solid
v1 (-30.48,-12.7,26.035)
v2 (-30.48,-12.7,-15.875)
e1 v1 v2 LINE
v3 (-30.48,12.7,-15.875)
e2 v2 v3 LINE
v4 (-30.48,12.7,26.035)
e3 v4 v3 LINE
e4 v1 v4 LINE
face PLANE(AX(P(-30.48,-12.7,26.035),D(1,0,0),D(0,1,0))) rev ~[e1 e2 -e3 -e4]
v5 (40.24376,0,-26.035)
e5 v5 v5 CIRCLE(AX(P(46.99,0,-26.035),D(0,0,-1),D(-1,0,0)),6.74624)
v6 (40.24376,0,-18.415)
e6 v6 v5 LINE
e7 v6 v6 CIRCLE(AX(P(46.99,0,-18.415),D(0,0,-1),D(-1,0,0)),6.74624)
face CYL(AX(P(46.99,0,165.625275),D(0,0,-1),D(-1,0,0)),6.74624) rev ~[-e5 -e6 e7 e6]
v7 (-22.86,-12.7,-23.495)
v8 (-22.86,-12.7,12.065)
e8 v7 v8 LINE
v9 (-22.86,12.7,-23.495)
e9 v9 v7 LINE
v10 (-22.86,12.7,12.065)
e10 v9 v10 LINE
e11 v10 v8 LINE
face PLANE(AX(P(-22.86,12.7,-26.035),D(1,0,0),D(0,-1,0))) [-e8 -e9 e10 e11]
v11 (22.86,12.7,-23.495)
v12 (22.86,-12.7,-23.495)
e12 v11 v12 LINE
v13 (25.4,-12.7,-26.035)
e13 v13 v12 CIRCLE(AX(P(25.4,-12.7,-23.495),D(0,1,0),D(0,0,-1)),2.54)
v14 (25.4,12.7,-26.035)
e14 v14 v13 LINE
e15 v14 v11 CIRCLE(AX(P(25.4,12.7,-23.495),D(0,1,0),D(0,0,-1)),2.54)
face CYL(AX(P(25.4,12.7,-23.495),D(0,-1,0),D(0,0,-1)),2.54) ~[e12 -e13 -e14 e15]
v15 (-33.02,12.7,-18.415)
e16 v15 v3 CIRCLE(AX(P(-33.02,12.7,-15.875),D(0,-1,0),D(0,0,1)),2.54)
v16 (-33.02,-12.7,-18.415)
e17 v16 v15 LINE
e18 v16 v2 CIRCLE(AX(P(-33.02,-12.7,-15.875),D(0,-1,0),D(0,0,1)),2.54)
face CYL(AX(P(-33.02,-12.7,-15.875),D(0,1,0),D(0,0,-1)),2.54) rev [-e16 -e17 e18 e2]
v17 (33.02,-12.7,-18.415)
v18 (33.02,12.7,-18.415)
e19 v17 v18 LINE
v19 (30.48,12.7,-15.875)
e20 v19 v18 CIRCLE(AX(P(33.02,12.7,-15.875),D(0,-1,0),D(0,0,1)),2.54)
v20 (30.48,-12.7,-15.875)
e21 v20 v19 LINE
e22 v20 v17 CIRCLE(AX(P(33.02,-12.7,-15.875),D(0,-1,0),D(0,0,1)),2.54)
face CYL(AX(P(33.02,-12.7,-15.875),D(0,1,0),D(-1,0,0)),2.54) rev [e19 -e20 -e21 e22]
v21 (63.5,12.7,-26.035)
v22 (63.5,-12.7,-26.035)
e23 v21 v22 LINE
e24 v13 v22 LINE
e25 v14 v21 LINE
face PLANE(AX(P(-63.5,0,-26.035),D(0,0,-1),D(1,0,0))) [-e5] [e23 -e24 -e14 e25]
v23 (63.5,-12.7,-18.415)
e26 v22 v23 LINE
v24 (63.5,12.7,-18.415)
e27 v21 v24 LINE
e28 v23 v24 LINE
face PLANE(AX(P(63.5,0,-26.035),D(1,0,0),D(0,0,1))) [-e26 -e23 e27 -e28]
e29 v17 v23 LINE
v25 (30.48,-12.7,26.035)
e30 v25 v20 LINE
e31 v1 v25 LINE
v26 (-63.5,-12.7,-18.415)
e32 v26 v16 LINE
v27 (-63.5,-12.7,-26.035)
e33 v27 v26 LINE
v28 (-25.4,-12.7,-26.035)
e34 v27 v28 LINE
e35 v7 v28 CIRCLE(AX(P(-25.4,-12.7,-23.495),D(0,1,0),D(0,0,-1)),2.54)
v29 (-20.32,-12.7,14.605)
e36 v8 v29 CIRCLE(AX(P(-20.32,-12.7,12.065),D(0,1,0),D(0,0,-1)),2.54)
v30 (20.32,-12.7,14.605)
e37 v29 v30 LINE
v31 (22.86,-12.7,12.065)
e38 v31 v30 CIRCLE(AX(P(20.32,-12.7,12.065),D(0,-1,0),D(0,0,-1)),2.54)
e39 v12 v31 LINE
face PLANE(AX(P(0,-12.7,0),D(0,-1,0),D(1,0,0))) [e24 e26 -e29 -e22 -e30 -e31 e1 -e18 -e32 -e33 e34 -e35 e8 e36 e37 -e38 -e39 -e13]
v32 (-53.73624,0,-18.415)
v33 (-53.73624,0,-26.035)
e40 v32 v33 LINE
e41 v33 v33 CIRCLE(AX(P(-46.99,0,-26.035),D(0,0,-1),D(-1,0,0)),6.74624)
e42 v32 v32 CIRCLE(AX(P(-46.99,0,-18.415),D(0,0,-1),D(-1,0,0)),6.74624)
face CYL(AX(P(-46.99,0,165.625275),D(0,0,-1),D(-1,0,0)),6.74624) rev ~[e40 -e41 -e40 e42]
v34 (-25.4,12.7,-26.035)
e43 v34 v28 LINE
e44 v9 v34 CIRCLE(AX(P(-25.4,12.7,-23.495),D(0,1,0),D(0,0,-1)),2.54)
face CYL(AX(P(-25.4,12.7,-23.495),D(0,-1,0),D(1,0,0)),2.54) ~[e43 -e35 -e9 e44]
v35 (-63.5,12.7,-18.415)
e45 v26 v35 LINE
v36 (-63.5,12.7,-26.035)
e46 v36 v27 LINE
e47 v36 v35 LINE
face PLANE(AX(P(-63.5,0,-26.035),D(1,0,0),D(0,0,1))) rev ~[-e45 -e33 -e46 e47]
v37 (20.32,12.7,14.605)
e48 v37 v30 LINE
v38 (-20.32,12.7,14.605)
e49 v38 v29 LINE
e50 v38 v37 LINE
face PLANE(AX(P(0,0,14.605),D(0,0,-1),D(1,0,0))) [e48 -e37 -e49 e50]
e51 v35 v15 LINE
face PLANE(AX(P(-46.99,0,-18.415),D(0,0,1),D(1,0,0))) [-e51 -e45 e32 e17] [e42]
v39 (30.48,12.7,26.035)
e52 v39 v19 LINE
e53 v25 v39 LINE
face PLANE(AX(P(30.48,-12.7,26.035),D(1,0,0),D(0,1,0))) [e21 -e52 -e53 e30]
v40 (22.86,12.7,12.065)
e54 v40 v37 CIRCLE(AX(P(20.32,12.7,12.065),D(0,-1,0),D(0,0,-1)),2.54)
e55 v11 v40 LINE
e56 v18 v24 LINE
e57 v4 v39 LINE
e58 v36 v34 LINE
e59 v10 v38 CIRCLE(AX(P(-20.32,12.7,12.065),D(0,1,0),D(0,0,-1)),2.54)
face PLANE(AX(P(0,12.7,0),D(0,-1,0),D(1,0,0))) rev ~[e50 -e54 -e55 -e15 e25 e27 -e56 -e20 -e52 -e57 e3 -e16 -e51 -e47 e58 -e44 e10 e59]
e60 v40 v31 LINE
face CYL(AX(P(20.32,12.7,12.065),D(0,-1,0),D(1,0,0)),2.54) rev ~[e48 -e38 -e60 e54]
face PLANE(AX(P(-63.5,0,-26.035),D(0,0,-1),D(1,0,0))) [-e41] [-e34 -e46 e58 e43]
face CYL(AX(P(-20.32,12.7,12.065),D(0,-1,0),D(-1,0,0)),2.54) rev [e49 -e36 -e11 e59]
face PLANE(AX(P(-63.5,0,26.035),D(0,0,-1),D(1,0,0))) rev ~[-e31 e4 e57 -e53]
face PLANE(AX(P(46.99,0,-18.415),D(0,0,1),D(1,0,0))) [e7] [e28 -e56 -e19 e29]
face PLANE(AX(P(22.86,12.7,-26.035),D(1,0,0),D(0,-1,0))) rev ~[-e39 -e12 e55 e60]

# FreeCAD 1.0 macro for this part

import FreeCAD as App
import Part
import Sketcher
Q = App.Units.Quantity


def edges_at(feature, points):
    """Names of the edges that pass closest to the given points."""
    edges = feature.Shape.Edges
    near = lambda p: min(range(len(edges)), key=lambda i: edges[i].distToShape(Part.Vertex(*p))[0])
    return sorted({f"Edge{near(p) + 1}" for p in points})

doc = App.newDocument("Part")
body = doc.addObject("PartDesign::Body", "Body")

sketch1 = body.newObject("Sketcher::SketchObject", "Sketch")
sketch1.AttachmentSupport = (doc.getObject("XZ_Plane"), [""])
sketch1.MapMode = "FlatFace"
sketch1.addGeometry([
    Part.LineSegment(App.Vector(-64, 26, 0), App.Vector(-64, -26, 0)),
    Part.LineSegment(App.Vector(-64, -26, 0), App.Vector(64, -26, 0)),
    Part.LineSegment(App.Vector(64, -26, 0), App.Vector(64, 26, 0)),
    Part.LineSegment(App.Vector(64, 26, 0), App.Vector(-64, 26, 0)),
], False)
sketch1.addConstraint([
    Sketcher.Constraint("Coincident", 0, 2, 1, 1),
    Sketcher.Constraint("Coincident", 1, 2, 2, 1),
    Sketcher.Constraint("Coincident", 2, 2, 3, 1),
    Sketcher.Constraint("Coincident", 3, 2, 0, 1),
    Sketcher.Constraint("Vertical", 0),
    Sketcher.Constraint("Horizontal", 1),
    Sketcher.Constraint("Vertical", 2),
    Sketcher.Constraint("Horizontal", 3),
    Sketcher.Constraint("Symmetric", 0, 2, 2, 2, -1, 1),
    Sketcher.Constraint("DistanceX", 1, 1, 1, 2, Q("5 in")),
    Sketcher.Constraint("DistanceY", 0, 2, 0, 1, Q("2.05 in")),
])
pad1 = body.newObject("PartDesign::Pad", "Pad")
pad1.Profile = sketch1
pad1.Length = Q("1 in")
pad1.Midplane = True

sketch2 = body.newObject("Sketcher::SketchObject", "Sketch001")
sketch2.AttachmentSupport = (doc.getObject("XY_Plane"), [""])
sketch2.MapMode = "FlatFace"
sketch2.AttachmentOffset = App.Placement(App.Vector(0, 0, -1.025 * 25.4), App.Rotation())
sketch2.addGeometry([
    Part.LineSegment(App.Vector(-23, -13, 0), App.Vector(-23, 13, 0)),
    Part.LineSegment(App.Vector(-23, 13, 0), App.Vector(23, 13, 0)),
    Part.LineSegment(App.Vector(23, 13, 0), App.Vector(23, -13, 0)),
    Part.LineSegment(App.Vector(23, -13, 0), App.Vector(-23, -13, 0)),
], False)
sketch2.addConstraint([
    Sketcher.Constraint("Coincident", 0, 2, 1, 1),
    Sketcher.Constraint("Coincident", 1, 2, 2, 1),
    Sketcher.Constraint("Coincident", 2, 2, 3, 1),
    Sketcher.Constraint("Coincident", 3, 2, 0, 1),
    Sketcher.Constraint("Vertical", 0),
    Sketcher.Constraint("Horizontal", 1),
    Sketcher.Constraint("Vertical", 2),
    Sketcher.Constraint("Horizontal", 3),
    Sketcher.Constraint("Symmetric", 0, 2, 2, 2, -1, 1),
    Sketcher.Constraint("DistanceY", 0, 1, 0, 2, Q("1 in")),
    Sketcher.Constraint("DistanceX", 1, 1, 1, 2, Q("1.8 in")),
])
pocket1 = body.newObject("PartDesign::Pocket", "Pocket")
pocket1.Profile = sketch2
pocket1.Length = Q("1.6 in")
pocket1.Reversed = True
doc.recompute()

fillet = body.newObject("PartDesign::Fillet", "Fillet")
fillet.Base = (pocket1, edges_at(pocket1, [(-22.86, 0, 14.605), (22.86, 0, 14.605)]))
fillet.Radius = Q("0.1 in")

sketch3 = body.newObject("Sketcher::SketchObject", "Sketch002")
sketch3.AttachmentSupport = (doc.getObject("XY_Plane"), [""])
sketch3.MapMode = "FlatFace"
sketch3.AttachmentOffset = App.Placement(App.Vector(0, 0, 1.025 * 25.4), App.Rotation())
sketch3.addGeometry([
    Part.LineSegment(App.Vector(-64, 13, 0), App.Vector(-64, -13, 0)),
    Part.LineSegment(App.Vector(-64, -13, 0), App.Vector(-30, -13, 0)),
    Part.LineSegment(App.Vector(-30, -13, 0), App.Vector(-30, 13, 0)),
    Part.LineSegment(App.Vector(-30, 13, 0), App.Vector(-64, 13, 0)),
    Part.LineSegment(App.Vector(30, 13, 0), App.Vector(30, -13, 0)),
    Part.LineSegment(App.Vector(30, -13, 0), App.Vector(64, -13, 0)),
    Part.LineSegment(App.Vector(64, -13, 0), App.Vector(64, 13, 0)),
    Part.LineSegment(App.Vector(64, 13, 0), App.Vector(30, 13, 0)),
], False)
sketch3.addConstraint([
    Sketcher.Constraint("Coincident", 0, 2, 1, 1),
    Sketcher.Constraint("Coincident", 1, 2, 2, 1),
    Sketcher.Constraint("Coincident", 2, 2, 3, 1),
    Sketcher.Constraint("Coincident", 3, 2, 0, 1),
    Sketcher.Constraint("Coincident", 4, 2, 5, 1),
    Sketcher.Constraint("Coincident", 5, 2, 6, 1),
    Sketcher.Constraint("Coincident", 6, 2, 7, 1),
    Sketcher.Constraint("Coincident", 7, 2, 4, 1),
    Sketcher.Constraint("Vertical", 0),
    Sketcher.Constraint("Horizontal", 1),
    Sketcher.Constraint("Vertical", 2),
    Sketcher.Constraint("Horizontal", 3),
    Sketcher.Constraint("Vertical", 4),
    Sketcher.Constraint("Horizontal", 5),
    Sketcher.Constraint("Vertical", 6),
    Sketcher.Constraint("Horizontal", 7),
    Sketcher.Constraint("Symmetric", 2, 2, 4, 2, -1, 1),
    Sketcher.Constraint("Symmetric", 0, 2, 6, 2, -1, 1),
    Sketcher.Constraint("Horizontal", 1, 2, 4, 2),
    Sketcher.Constraint("DistanceY", 0, 2, 0, 1, Q("1 in")),
    Sketcher.Constraint("DistanceX", 1, 1, 1, 2, Q("1.3 in")),
    Sketcher.Constraint("DistanceX", 0, 2, 5, 2, Q("5 in")),
])
pocket2 = body.newObject("PartDesign::Pocket", "Pocket001")
pocket2.Profile = sketch3
pocket2.Length = Q("1.75 in")
doc.recompute()

fillet2 = body.newObject("PartDesign::Fillet", "Fillet001")
fillet2.Base = (pocket2, edges_at(pocket2, [
    (-30.48, 0, -18.415),
    (30.48, 0, -18.415),
    (-22.86, 0, -26.035),
    (22.86, 0, -26.035),
]))
fillet2.Radius = Q("0.1 in")

sketch4 = body.newObject("Sketcher::SketchObject", "Sketch003")
sketch4.AttachmentSupport = (doc.getObject("XY_Plane"), [""])
sketch4.MapMode = "FlatFace"
sketch4.AttachmentOffset = App.Placement(App.Vector(0, 0, 1.025 * 25.4), App.Rotation())
sketch4.addGeometry([
    Part.Circle(App.Vector(-47, 0, 0), App.Vector(0, 0, 1), 7),
    Part.Circle(App.Vector(47, 0, 0), App.Vector(0, 0, 1), 7),
], False)
sketch4.addConstraint([
    Sketcher.Constraint("Equal", 0, 1),
    Sketcher.Constraint("Symmetric", 0, 3, 1, 3, -1, 1),
    Sketcher.Constraint("PointOnObject", 0, 3, -1),
    Sketcher.Constraint("Diameter", 0, Q("0.5312 in")),
    Sketcher.Constraint("DistanceX", 0, 3, 1, 3, Q("3.7 in")),
])
doc.recompute()
hole = body.newObject("PartDesign::Hole", "Hole")
hole.Profile = sketch4
hole.ThreadType = "None"
hole.Diameter = Q("0.5312 in")
hole.DepthType = "ThroughAll"

doc.recompute()
